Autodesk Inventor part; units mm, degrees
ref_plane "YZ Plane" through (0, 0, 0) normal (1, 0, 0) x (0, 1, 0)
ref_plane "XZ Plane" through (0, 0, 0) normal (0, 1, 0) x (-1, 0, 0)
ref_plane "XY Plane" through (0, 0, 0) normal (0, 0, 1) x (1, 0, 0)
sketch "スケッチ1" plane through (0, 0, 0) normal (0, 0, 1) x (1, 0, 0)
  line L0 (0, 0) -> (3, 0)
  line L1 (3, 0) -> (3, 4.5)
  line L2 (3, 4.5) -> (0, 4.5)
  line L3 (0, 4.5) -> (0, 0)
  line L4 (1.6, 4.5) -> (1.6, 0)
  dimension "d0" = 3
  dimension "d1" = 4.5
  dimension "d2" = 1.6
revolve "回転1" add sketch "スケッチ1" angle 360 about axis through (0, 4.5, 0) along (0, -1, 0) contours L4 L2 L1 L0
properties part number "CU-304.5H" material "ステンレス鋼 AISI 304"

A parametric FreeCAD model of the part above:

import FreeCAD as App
import Part
import Sketcher
from FreeCAD import Vector


def add_polygon(sketch, points):
    """Adds a closed chain of lines whose ends are joined by coincident constraints."""
    first, n = sketch.GeometryCount, len(points)
    for a, b in zip(points, points[1:] + points[:1]):
        sketch.addGeometry(Part.LineSegment(App.Vector(*a, 0), App.Vector(*b, 0)), False)
    for i in range(n):
        sketch.addConstraint(Sketcher.Constraint("Coincident", first + i, 2, first + (i + 1) % n, 1))

doc = App.newDocument("Part")
body = doc.addObject("PartDesign::Body", "Body")

# Sketch on XY plane
sketch1 = body.newObject("Sketcher::SketchObject", "Sketch")
sketch1.AttachmentSupport = (doc.getObject("XY_Plane"), [""])
sketch1.MapMode = "FlatFace"
add_polygon(sketch1, [(1.6, 4.5), (1.6, 0), (3, 0), (3, 4.5)])  # lines 0-3
sketch1.addConstraint([
    Sketcher.Constraint("Vertical", 0),
    Sketcher.Constraint("Horizontal", 1),
    Sketcher.Constraint("Vertical", 2),
    Sketcher.Constraint("Horizontal", 3),
    Sketcher.Constraint("PointOnObject", 0, 2, -1),
    Sketcher.Constraint("DistanceY", 0, 2, 0, 1, 4.5),
    Sketcher.Constraint("DistanceX", -1, 1, 1, 2, 3.0),
    Sketcher.Constraint("DistanceX", -1, 1, 0, 2, 1.6),
])
revolution = body.newObject("PartDesign::Revolution", "Revolution")
revolution.Profile = sketch1
revolution.ReferenceAxis = (sketch1, ["V_Axis"])
revolution.Angle = 360

doc.recompute()
